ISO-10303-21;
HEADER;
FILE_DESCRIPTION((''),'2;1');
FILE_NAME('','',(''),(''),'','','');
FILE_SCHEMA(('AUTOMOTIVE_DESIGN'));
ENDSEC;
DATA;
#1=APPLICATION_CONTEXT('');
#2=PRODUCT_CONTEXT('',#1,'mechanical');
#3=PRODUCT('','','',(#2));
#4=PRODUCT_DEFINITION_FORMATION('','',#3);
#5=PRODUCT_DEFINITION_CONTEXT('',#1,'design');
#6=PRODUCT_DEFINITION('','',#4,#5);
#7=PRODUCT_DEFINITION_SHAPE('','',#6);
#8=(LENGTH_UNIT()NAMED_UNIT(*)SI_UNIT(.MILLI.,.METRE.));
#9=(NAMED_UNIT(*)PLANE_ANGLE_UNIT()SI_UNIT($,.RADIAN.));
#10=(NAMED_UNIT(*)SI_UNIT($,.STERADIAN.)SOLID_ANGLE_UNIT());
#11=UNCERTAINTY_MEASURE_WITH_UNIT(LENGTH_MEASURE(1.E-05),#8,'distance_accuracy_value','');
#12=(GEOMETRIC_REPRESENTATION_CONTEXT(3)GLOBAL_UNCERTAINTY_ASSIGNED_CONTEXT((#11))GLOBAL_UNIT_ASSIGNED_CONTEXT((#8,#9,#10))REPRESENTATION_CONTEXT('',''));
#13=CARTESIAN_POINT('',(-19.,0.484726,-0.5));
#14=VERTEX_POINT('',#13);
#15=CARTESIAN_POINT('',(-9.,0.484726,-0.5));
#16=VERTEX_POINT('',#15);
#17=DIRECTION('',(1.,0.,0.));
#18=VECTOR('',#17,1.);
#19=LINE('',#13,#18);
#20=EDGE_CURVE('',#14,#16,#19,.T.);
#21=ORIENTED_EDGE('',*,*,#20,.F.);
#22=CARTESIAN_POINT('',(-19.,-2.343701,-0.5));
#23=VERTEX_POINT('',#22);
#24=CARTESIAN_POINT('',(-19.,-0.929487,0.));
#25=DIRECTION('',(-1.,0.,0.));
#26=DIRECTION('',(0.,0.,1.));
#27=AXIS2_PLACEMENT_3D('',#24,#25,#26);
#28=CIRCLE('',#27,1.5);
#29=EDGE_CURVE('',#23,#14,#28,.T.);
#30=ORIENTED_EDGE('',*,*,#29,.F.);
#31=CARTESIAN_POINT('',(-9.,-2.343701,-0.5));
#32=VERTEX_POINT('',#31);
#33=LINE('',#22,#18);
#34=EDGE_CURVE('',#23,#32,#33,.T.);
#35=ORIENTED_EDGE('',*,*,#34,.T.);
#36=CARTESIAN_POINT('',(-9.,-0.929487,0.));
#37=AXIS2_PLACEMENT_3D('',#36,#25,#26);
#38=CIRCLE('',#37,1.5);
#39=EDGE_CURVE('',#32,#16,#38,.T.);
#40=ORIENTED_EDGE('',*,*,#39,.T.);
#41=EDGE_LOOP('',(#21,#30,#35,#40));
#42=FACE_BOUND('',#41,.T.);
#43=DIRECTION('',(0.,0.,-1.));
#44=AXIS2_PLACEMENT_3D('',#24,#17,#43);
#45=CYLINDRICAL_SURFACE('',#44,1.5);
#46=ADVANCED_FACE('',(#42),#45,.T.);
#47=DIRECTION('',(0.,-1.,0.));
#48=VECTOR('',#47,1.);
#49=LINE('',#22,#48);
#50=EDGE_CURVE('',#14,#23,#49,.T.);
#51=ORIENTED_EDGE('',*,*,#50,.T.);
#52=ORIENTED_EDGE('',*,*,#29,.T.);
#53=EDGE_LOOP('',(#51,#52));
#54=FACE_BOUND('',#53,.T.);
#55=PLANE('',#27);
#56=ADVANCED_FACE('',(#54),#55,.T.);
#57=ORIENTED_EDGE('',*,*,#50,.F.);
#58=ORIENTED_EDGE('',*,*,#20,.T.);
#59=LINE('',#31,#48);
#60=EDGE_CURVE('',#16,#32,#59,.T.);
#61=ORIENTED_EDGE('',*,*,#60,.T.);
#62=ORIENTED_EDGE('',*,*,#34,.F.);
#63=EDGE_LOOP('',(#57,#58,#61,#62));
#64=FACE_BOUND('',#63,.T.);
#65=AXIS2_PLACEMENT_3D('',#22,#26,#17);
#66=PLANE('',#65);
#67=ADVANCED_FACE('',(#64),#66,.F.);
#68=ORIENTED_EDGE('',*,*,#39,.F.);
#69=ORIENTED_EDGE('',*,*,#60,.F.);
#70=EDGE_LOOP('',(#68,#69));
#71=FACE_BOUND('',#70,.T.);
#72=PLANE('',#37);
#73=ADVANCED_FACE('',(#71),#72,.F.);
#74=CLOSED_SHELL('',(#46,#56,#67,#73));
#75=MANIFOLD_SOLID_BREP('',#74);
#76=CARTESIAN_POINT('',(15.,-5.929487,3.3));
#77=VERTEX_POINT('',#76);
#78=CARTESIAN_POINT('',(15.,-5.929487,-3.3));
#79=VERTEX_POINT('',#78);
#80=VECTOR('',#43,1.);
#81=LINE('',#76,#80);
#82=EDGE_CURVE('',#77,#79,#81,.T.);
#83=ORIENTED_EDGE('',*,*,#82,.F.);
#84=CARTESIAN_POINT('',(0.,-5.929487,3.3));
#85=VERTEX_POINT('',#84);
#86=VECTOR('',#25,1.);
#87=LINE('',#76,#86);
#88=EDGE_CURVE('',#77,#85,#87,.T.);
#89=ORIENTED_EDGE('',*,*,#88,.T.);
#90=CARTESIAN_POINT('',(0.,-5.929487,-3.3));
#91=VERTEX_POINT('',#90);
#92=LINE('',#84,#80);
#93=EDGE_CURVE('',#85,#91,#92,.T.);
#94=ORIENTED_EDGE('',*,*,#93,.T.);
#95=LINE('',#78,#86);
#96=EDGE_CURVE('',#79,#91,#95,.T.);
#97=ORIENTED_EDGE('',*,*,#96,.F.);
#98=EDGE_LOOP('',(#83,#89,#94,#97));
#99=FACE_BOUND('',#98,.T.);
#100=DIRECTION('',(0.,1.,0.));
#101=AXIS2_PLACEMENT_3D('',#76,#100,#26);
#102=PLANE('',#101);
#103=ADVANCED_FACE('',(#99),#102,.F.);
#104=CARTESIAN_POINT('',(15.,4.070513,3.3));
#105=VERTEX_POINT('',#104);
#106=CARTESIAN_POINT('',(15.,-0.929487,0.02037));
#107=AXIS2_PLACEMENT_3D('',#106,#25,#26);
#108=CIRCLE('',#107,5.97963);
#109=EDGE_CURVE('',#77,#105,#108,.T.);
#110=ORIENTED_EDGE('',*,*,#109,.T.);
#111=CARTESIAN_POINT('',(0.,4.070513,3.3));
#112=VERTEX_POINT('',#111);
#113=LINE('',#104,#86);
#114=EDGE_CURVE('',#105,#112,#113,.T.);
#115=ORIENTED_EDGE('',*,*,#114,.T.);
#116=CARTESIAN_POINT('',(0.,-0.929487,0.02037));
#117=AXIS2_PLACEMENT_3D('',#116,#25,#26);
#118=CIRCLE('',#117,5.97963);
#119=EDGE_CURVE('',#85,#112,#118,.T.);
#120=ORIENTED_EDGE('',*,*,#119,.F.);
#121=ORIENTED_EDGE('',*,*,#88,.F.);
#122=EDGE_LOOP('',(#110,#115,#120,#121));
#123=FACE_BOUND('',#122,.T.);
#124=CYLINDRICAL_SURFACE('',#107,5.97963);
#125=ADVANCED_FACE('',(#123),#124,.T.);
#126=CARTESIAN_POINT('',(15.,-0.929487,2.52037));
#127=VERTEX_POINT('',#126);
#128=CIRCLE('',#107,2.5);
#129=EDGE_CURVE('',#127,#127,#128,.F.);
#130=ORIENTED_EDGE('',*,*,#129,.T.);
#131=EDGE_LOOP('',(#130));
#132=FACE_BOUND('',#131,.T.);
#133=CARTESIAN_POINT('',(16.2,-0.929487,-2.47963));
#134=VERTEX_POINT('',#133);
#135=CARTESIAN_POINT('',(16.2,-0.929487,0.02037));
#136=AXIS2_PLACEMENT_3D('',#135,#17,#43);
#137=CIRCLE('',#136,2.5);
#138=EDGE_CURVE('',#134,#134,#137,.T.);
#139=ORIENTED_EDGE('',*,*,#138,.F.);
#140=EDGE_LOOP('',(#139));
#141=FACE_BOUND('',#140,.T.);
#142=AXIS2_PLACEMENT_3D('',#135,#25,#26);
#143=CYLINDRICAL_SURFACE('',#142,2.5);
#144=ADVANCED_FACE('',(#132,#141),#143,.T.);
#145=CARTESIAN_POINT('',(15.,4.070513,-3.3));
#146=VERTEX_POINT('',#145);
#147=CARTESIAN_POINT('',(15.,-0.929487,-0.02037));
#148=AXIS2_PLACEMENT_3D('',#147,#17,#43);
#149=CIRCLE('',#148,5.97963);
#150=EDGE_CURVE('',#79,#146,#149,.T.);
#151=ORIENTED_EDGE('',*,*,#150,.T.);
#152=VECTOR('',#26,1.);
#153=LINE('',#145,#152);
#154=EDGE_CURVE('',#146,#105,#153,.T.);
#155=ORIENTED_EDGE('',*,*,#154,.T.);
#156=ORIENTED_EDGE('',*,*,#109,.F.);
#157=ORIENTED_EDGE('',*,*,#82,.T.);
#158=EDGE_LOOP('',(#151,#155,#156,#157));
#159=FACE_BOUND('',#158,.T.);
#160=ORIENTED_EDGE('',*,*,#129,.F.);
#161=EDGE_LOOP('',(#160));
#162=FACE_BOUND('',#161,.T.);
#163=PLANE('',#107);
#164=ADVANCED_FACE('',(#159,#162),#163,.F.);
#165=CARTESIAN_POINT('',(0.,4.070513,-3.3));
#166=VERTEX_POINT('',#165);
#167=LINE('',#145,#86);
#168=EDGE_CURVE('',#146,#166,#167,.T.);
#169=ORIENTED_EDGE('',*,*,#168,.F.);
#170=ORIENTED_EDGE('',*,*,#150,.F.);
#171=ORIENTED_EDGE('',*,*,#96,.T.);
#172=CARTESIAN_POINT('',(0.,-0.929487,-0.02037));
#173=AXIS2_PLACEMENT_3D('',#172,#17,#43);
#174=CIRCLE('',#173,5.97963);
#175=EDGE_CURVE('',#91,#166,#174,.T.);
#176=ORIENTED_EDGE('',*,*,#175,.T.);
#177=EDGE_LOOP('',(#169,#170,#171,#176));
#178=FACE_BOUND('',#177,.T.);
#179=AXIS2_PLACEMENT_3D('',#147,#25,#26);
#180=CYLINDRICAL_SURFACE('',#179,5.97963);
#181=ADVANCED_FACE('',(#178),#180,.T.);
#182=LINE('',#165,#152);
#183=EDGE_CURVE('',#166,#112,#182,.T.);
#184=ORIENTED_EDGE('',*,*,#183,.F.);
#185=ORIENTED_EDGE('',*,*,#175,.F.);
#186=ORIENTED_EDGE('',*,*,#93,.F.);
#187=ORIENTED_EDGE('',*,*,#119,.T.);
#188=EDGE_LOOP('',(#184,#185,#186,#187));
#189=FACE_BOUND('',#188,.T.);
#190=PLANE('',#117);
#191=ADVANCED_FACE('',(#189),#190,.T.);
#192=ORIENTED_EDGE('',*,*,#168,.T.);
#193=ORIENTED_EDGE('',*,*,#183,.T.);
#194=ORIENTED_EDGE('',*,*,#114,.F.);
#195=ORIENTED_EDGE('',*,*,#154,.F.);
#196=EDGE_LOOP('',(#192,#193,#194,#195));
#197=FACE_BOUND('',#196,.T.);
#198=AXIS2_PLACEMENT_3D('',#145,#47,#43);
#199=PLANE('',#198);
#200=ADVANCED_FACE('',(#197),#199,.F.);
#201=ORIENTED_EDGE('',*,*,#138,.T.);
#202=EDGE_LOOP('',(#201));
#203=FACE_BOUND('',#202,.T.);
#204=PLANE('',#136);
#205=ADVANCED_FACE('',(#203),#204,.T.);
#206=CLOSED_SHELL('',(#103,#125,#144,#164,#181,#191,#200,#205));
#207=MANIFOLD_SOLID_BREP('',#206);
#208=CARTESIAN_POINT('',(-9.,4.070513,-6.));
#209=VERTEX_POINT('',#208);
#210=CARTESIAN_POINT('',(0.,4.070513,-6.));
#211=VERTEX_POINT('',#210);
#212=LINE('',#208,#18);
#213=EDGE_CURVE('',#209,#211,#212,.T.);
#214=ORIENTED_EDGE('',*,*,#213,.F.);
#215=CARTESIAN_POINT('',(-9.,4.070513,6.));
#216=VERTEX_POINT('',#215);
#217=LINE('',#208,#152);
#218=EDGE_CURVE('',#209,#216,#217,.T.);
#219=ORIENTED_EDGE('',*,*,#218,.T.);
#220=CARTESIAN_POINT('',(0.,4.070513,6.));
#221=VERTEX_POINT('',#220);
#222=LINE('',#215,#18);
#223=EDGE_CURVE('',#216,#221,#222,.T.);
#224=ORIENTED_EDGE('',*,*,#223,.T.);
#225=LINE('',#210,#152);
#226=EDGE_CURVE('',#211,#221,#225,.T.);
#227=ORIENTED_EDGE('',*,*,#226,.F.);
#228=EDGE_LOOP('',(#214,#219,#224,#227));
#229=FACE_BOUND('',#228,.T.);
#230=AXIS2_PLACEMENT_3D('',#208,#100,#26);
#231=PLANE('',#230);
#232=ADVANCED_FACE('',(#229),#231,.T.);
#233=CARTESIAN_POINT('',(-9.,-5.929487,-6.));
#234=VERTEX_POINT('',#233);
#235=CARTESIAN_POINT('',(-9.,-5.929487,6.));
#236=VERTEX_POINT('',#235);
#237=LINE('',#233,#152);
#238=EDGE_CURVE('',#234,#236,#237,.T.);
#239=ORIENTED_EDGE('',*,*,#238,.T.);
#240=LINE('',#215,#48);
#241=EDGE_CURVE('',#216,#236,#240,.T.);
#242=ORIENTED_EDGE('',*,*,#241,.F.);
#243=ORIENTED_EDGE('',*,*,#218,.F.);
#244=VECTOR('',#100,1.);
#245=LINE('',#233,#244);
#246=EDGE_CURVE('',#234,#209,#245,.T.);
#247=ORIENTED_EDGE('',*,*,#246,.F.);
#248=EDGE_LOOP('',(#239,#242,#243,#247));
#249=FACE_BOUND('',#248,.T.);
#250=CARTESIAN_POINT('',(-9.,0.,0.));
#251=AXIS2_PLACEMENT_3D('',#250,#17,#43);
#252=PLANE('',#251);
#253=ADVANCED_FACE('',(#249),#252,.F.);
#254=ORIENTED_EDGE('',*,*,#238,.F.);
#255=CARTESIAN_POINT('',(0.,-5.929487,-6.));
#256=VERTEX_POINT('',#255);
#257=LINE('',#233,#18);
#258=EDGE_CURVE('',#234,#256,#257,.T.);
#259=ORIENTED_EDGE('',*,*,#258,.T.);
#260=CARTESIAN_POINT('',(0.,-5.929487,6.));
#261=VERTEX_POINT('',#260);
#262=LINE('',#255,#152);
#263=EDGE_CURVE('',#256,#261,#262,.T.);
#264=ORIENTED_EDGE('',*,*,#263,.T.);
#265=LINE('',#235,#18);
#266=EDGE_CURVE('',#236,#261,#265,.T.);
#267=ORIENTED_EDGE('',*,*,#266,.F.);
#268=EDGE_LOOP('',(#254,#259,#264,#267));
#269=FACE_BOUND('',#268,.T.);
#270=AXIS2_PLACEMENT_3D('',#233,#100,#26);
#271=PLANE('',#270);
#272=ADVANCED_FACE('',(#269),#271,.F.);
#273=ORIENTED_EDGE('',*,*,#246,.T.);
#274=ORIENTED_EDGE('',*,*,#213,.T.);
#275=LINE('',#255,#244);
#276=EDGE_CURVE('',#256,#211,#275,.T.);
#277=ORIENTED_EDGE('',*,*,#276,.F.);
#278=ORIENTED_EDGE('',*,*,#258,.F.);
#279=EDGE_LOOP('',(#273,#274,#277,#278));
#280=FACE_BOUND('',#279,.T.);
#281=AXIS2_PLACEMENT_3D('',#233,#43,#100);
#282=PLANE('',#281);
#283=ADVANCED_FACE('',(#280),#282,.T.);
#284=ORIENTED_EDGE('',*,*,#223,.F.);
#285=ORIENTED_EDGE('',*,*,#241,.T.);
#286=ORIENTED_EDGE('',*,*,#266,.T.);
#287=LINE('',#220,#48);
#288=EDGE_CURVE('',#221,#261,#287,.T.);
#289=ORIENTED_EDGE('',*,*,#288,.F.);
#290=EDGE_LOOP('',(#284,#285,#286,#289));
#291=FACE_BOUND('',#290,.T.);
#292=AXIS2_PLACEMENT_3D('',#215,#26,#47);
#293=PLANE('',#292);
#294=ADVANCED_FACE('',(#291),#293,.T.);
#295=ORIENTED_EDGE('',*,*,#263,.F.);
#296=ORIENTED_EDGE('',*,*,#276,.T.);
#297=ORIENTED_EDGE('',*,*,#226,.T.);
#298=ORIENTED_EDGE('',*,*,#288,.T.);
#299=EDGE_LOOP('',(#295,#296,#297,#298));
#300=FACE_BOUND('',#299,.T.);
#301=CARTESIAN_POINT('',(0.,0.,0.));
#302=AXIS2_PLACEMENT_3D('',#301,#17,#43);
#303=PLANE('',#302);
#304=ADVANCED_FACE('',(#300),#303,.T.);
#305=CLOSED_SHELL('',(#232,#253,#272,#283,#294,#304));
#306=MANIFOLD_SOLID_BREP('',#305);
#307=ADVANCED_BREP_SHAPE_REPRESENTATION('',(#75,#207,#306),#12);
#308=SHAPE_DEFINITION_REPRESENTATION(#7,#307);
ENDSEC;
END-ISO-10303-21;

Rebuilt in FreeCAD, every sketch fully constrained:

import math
import FreeCAD as App
import Part
import Sketcher

V = App.Vector
Q = App.Units.Quantity

doc = App.newDocument("Part")
params = doc.addObject("Spreadsheet::Sheet", "Params")
for row, (alias, value) in enumerate([
    ("sketch1_height", "6.6 mm"),
    ("pad1_length", "15 mm"),
    ("sketch2_diameter", "5 mm"),
    ("pad2_length", "1.2 mm"),
    ("sketch3_width", "10 mm"),
    ("sketch3_height", "12 mm"),
    ("pad3_length", "9 mm"),
    ("sketch4_radius", "1.5 mm"),
    ("pad4_length", "10 mm"),
], start=1):
    params.set(f"A{row}", alias)
    params.set(f"B{row}", "=" + value)
    params.setAlias(f"B{row}", alias)

body = doc.addObject("PartDesign::Body", "Body")

# Sketch on YZ plane
sketch1 = body.newObject("Sketcher::SketchObject", "Sketch")
sketch1.AttachmentSupport = (doc.getObject("YZ_Plane"), [""])
sketch1.MapMode = "FlatFace"
sketch1.addGeometry([
    Part.LineSegment(V(4.070513, -3.3, 0), V(4.070513, 3.3, 0)),
    Part.ArcOfCircle(Part.Circle(V(-0.929487, 0.02037, 0), V(0, 0, 1), 5.97963), math.radians(33.261907), math.radians(146.738093)),
    Part.LineSegment(V(-5.929487, 3.3, 0), V(-5.929487, -3.3, 0)),
    Part.ArcOfCircle(Part.Circle(V(-0.929487, -0.02037, 0), V(0, 0, 1), 5.97963), math.radians(-146.738093), math.radians(-33.261907)),
], False)
sketch1.addConstraint([
    Sketcher.Constraint("Coincident", 0, 2, 1, 1),
    Sketcher.Constraint("Coincident", 1, 2, 2, 1),
    Sketcher.Constraint("Coincident", 2, 2, 3, 1),
    Sketcher.Constraint("Coincident", 3, 2, 0, 1),
    Sketcher.Constraint("Vertical", 0),
    Sketcher.Constraint("Vertical", 2),
    Sketcher.Constraint("Equal", 1, 3),
    Sketcher.Constraint("Symmetric", 1, 3, 3, 3, -1),
    Sketcher.Constraint("Horizontal", 0, 2, 1, 2),
    Sketcher.Constraint("DistanceY", 0, 1, 0, 2, Q("6.6 mm")),
    Sketcher.Constraint("DistanceX", 1, 3, 0, 2, Q("5 mm")),
    Sketcher.Constraint("Radius", 1, Q("5.97963 mm")),
    Sketcher.Constraint("DistanceX", 1, 3, -1, 1, Q("0.929487 mm")),
])
sketch1.setExpression("Constraints[9]", "Params.sketch1_height")
pad1 = body.newObject("PartDesign::Pad", "Pad")
pad1.Profile = sketch1
pad1.setExpression("Length", "Params.pad1_length")

# Sketch on YZ plane
sketch2 = body.newObject("Sketcher::SketchObject", "Sketch001")
sketch2.AttachmentSupport = (doc.getObject("YZ_Plane"), [""])
sketch2.MapMode = "FlatFace"
sketch2.AttachmentOffset = App.Placement(V(0, 0, 15), App.Rotation())
sketch2.addGeometry(Part.Circle(V(-0.9, 0, 0), V(0, 0, 1), 2.5), False)
sketch2.addConstraint([
    Sketcher.Constraint("Diameter", 0, Q("5 mm")),
    Sketcher.Constraint("DistanceY", -1, 1, 0, 3, Q("0.02037 mm")),
    Sketcher.Constraint("DistanceX", 0, 3, -1, 1, Q("0.929487 mm")),
])
sketch2.setExpression("Constraints[0]", "Params.sketch2_diameter")
pad2 = body.newObject("PartDesign::Pad", "Pad001")
pad2.Profile = sketch2
pad2.setExpression("Length", "Params.pad2_length")
body2 = doc.addObject("PartDesign::Body", "Body001")

# Sketch on YZ plane
sketch3 = body2.newObject("Sketcher::SketchObject", "Sketch002")
sketch3.AttachmentSupport = (doc.getObject("YZ_Plane001"), [""])
sketch3.MapMode = "FlatFace"
sketch3.addGeometry([
    Part.LineSegment(V(4, -6, 0), V(-6, -6, 0)),
    Part.LineSegment(V(-6, -6, 0), V(-6, 6, 0)),
    Part.LineSegment(V(-6, 6, 0), V(4, 6, 0)),
    Part.LineSegment(V(4, 6, 0), V(4, -6, 0)),
], False)
sketch3.addConstraint([
    Sketcher.Constraint("Coincident", 0, 2, 1, 1),
    Sketcher.Constraint("Coincident", 1, 2, 2, 1),
    Sketcher.Constraint("Coincident", 2, 2, 3, 1),
    Sketcher.Constraint("Coincident", 3, 2, 0, 1),
    Sketcher.Constraint("Horizontal", 0),
    Sketcher.Constraint("Vertical", 1),
    Sketcher.Constraint("Horizontal", 2),
    Sketcher.Constraint("Vertical", 3),
    Sketcher.Constraint("DistanceX", 0, 2, 0, 1, Q("10 mm")),
    Sketcher.Constraint("DistanceY", 1, 1, 1, 2, Q("12 mm")),
    Sketcher.Constraint("DistanceY", 0, 2, -1, 1, Q("6 mm")),
    Sketcher.Constraint("DistanceX", 0, 2, -1, 1, Q("5.929487 mm")),
])
sketch3.setExpression("Constraints[8]", "Params.sketch3_width")
sketch3.setExpression("Constraints[9]", "Params.sketch3_height")
pad3 = body2.newObject("PartDesign::Pad", "Pad002")
pad3.Profile = sketch3
pad3.setExpression("Length", "Params.pad3_length")
pad3.Reversed = True
body3 = doc.addObject("PartDesign::Body", "Body002")

# Sketch on YZ plane
sketch4 = body3.newObject("Sketcher::SketchObject", "Sketch003")
sketch4.AttachmentSupport = (doc.getObject("YZ_Plane002"), [""])
sketch4.MapMode = "FlatFace"
sketch4.AttachmentOffset = App.Placement(V(0, 0, -9), App.Rotation())
sketch4.addGeometry([
    Part.LineSegment(V(0.5, -0.5, 0), V(-2.3, -0.5, 0)),
    Part.ArcOfCircle(Part.Circle(V(-0.9, 0, 0), V(0, 0, 1), 1.5), math.radians(-19), math.radians(199)),
], False)
sketch4.addConstraint([
    Sketcher.Constraint("Coincident", 0, 1, 1, 1),
    Sketcher.Constraint("Coincident", 1, 2, 0, 2),
    Sketcher.Constraint("Horizontal", 0),
    Sketcher.Constraint("PointOnObject", 1, 3, -1),
    Sketcher.Constraint("Radius", 1, Q("1.5 mm")),
    Sketcher.Constraint("DistanceY", 0, 1, -1, 1, Q("0.5 mm")),
    Sketcher.Constraint("DistanceX", 1, 2, -1, 1, Q("2.343701 mm")),
])
sketch4.setExpression("Constraints[4]", "Params.sketch4_radius")
pad4 = body3.newObject("PartDesign::Pad", "Pad003")
pad4.Profile = sketch4
pad4.setExpression("Length", "Params.pad4_length")
pad4.Reversed = True

doc.recompute()
